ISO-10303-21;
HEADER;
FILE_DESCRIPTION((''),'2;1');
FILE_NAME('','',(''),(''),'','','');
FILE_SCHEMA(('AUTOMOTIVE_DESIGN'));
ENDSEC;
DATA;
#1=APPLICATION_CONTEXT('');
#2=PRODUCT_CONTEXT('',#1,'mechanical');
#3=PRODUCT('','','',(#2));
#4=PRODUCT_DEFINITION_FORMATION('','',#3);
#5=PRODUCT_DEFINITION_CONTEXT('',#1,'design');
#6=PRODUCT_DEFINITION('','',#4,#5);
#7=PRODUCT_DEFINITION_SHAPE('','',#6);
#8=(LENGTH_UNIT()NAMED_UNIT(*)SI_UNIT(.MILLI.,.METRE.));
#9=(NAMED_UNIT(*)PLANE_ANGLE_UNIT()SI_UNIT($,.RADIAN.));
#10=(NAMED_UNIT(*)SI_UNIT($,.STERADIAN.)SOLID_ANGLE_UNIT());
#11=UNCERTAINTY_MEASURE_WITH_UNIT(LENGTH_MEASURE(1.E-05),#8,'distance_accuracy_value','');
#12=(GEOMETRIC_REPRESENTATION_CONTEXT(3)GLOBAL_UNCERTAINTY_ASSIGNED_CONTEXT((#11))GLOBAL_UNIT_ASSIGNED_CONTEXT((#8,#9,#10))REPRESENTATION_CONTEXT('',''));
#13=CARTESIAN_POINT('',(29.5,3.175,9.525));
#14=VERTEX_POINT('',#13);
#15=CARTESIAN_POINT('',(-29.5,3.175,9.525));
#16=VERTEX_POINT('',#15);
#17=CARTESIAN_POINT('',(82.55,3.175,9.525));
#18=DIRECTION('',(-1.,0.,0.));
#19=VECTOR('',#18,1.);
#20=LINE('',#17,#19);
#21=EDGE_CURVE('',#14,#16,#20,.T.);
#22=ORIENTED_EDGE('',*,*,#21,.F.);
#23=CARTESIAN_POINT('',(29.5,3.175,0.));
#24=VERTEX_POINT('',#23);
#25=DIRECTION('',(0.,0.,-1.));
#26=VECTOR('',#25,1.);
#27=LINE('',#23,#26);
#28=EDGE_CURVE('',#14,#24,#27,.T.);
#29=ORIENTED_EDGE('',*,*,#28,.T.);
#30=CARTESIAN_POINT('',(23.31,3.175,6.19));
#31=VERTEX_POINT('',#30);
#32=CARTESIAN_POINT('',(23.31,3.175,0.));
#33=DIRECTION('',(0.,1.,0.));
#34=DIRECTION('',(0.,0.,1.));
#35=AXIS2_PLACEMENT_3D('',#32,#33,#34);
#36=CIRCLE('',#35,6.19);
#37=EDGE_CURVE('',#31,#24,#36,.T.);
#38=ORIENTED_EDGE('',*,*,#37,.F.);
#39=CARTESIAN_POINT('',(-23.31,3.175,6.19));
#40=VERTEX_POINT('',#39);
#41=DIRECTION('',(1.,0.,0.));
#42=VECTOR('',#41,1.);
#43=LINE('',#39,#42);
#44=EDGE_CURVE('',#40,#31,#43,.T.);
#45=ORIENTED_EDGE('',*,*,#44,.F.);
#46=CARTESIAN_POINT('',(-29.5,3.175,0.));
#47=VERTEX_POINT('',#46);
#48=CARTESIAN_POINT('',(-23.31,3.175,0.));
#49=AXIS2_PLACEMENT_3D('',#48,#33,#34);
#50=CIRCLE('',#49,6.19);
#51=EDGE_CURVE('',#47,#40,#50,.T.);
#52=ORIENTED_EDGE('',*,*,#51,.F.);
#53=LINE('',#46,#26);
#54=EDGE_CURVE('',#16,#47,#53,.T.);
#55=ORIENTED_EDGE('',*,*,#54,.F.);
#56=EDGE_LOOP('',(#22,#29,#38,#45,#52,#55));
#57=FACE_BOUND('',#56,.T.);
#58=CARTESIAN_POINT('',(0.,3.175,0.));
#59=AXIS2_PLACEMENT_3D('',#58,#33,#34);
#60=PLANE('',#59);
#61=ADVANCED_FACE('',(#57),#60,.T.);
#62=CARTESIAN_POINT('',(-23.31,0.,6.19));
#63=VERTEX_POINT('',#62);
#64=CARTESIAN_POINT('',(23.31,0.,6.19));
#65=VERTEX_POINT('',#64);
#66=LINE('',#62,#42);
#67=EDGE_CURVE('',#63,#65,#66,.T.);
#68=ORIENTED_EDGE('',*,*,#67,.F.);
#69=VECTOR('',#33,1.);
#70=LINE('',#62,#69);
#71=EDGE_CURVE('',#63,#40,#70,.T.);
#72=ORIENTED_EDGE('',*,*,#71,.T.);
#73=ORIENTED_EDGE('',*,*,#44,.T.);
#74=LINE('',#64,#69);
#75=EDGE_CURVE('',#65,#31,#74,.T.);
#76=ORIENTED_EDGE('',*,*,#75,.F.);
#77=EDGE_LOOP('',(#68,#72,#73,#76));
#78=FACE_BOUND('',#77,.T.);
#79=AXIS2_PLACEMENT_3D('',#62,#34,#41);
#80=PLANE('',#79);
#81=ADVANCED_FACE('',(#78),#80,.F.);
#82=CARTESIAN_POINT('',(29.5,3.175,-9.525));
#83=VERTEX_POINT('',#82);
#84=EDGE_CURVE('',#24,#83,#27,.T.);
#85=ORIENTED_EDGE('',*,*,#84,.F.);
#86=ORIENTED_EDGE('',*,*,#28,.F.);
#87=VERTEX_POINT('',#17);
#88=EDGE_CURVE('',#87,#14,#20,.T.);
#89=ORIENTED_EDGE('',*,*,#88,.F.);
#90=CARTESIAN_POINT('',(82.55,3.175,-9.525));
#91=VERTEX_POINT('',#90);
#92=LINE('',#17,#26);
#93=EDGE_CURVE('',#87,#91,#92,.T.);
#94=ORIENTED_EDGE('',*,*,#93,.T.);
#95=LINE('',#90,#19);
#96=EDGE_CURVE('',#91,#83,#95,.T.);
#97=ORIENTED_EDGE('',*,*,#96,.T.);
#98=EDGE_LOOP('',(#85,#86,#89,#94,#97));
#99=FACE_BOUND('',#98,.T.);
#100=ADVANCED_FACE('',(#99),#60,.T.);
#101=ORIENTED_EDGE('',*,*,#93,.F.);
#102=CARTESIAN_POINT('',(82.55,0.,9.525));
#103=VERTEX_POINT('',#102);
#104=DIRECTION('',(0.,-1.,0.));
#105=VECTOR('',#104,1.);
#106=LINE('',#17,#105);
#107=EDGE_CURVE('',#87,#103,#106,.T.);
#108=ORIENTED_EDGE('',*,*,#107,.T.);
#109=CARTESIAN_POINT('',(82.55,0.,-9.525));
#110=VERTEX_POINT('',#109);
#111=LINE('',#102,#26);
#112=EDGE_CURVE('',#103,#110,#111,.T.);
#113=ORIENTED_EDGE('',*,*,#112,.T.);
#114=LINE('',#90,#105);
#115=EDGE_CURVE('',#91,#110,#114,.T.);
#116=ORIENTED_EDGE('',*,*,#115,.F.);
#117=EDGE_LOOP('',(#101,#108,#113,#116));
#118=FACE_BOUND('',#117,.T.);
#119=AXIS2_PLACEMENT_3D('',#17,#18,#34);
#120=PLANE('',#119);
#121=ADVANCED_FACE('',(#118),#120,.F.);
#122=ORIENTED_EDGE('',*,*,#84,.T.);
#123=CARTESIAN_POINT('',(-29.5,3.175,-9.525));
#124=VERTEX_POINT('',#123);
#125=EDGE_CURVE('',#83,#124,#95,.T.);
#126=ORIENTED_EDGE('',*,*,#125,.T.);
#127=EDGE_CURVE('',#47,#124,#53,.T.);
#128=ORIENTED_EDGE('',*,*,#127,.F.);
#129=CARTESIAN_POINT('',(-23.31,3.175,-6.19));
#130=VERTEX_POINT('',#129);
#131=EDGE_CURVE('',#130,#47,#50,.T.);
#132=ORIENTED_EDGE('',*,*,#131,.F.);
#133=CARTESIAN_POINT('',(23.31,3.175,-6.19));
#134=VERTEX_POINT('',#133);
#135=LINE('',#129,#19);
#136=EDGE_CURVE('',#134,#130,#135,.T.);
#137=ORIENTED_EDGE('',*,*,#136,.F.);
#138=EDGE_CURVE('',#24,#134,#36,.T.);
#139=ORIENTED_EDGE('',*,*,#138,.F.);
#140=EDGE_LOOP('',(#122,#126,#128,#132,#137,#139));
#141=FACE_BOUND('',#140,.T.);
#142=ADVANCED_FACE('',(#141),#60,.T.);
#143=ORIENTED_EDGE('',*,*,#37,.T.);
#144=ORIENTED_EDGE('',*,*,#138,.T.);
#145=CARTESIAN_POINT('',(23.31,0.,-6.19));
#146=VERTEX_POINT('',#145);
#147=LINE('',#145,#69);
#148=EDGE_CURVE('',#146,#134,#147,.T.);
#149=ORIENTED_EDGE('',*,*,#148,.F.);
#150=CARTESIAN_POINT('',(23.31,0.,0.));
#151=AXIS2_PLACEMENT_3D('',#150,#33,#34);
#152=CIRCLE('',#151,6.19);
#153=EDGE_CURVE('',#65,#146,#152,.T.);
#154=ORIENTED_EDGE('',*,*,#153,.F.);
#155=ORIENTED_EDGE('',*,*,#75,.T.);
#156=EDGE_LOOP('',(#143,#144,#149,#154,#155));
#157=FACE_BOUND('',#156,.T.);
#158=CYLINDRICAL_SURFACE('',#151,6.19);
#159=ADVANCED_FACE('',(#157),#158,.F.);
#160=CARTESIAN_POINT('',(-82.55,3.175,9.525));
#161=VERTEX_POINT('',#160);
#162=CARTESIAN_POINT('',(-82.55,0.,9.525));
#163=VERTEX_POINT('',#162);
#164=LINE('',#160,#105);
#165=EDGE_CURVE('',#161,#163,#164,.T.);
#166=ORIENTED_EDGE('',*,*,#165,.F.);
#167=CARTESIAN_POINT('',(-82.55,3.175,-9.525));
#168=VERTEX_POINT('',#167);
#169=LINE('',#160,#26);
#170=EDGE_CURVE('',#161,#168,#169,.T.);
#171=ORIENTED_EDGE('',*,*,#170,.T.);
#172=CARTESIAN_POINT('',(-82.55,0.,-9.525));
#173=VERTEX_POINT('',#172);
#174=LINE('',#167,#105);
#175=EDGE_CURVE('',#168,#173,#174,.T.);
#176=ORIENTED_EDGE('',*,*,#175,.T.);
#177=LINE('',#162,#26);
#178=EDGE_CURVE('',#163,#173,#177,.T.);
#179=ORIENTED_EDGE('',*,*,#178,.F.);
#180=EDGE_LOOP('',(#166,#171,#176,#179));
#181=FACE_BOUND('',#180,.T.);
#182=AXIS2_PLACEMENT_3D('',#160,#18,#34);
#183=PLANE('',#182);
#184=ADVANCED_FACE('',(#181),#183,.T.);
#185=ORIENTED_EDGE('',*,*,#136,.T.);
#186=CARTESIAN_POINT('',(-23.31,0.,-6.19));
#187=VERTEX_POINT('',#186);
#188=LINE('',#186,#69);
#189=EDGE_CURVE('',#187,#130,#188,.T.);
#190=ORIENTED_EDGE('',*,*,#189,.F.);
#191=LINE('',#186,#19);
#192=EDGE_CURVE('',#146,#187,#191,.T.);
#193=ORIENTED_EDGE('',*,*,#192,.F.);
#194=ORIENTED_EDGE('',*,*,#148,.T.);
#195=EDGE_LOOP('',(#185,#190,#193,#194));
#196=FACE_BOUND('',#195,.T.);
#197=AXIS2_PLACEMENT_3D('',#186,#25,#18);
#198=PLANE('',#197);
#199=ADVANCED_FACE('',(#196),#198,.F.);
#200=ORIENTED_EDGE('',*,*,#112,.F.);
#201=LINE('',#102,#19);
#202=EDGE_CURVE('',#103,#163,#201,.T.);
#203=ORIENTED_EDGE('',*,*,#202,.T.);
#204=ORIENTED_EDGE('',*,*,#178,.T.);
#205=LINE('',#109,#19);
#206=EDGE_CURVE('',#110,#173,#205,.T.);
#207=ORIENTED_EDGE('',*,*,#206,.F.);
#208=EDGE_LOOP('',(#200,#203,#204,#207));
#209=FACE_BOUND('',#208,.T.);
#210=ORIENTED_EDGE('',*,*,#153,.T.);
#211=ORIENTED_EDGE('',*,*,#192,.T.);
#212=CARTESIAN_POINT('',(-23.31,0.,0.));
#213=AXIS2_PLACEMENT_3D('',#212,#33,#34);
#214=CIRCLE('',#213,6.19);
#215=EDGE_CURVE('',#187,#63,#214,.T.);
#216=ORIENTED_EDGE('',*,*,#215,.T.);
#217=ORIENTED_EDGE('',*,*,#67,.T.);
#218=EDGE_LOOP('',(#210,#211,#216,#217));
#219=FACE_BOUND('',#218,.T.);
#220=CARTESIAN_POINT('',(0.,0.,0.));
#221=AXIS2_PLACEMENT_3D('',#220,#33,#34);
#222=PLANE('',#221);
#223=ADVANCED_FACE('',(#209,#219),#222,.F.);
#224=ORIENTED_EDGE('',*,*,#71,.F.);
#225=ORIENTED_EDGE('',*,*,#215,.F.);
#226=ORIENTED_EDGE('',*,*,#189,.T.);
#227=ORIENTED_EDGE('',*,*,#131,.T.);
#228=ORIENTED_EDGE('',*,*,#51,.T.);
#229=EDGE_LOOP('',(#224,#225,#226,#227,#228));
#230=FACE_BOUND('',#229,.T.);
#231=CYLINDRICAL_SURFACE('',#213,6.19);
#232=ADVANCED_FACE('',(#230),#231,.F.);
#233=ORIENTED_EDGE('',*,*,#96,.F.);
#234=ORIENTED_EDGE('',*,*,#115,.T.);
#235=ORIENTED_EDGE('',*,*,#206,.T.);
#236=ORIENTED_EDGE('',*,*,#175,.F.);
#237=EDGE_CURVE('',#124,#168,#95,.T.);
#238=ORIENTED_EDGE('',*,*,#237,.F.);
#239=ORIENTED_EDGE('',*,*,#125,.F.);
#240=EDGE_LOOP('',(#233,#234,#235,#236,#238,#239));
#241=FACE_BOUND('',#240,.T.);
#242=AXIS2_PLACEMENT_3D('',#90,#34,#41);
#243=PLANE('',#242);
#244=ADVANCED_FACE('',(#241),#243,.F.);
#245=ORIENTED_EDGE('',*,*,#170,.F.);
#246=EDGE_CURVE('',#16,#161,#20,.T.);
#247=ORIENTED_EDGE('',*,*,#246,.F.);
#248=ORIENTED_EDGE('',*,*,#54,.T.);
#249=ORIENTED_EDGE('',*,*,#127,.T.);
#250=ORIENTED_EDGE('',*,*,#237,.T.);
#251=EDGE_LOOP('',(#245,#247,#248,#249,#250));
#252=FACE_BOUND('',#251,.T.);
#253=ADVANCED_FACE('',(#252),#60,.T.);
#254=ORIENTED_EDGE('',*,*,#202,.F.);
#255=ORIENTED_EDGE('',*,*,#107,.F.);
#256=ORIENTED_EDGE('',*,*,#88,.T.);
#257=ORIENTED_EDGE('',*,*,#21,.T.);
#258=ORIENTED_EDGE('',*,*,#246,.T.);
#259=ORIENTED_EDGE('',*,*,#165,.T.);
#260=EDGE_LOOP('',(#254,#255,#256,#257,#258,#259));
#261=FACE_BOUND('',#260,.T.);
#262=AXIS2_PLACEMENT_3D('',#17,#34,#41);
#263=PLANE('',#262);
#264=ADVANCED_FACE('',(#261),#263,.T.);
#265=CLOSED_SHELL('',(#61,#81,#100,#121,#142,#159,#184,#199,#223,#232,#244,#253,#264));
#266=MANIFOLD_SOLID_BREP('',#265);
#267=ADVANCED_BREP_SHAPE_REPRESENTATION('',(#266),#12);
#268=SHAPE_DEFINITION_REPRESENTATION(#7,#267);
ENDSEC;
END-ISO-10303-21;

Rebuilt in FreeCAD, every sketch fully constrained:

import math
import FreeCAD as App
import Part
import Sketcher
Q = App.Units.Quantity


def add_polygon(sketch, points):
    """Adds a closed chain of lines whose ends are joined by coincident constraints."""
    first, n = sketch.GeometryCount, len(points)
    for a, b in zip(points, points[1:] + points[:1]):
        sketch.addGeometry(Part.LineSegment(App.Vector(*a, 0), App.Vector(*b, 0)), False)
    for i in range(n):
        sketch.addConstraint(Sketcher.Constraint("Coincident", first + i, 2, first + (i + 1) % n, 1))

doc = App.newDocument("Part")
body = doc.addObject("PartDesign::Body", "Body")

sketch1 = body.newObject("Sketcher::SketchObject", "Sketch")
sketch1.AttachmentSupport = (doc.getObject("XZ_Plane"), [""])
sketch1.MapMode = "FlatFace"
add_polygon(sketch1, [(-82.55, -9.525), (-82.55, 9.525), (82.55, 9.525), (82.55, -9.525)])
sketch1.addConstraint([
    Sketcher.Constraint("Vertical", 0),
    Sketcher.Constraint("Horizontal", 1),
    Sketcher.Constraint("Vertical", 2),
    Sketcher.Constraint("Horizontal", 3),
    Sketcher.Constraint("Symmetric", 0, 2, 2, 2, -1, 1),
    Sketcher.Constraint("DistanceX", 1, 1, 1, 2, Q("6.5 in")),
    Sketcher.Constraint("DistanceY", 0, 1, 0, 2, Q("0.75 in")),
])
pad1 = body.newObject("PartDesign::Pad", "Pad")
pad1.Profile = sketch1
pad1.Length = Q("0.125 in")
pad1.Reversed = True

sketch2 = body.newObject("Sketcher::SketchObject", "Sketch001")
sketch2.AttachmentSupport = (doc.getObject("XZ_Plane"), [""])
sketch2.MapMode = "FlatFace"
sketch2.AttachmentOffset = App.Placement(App.Vector(0, 0, -0.125 * 25.4), App.Rotation())
sketch2.addGeometry([
    Part.LineSegment(App.Vector(23.31, -6.19, 0), App.Vector(-23.31, -6.19, 0)),
    Part.ArcOfCircle(Part.Circle(App.Vector(-23.31, 0, 0), App.Vector(0, 0, 1), 6.19), math.radians(90), math.radians(270)),
    Part.LineSegment(App.Vector(-23.31, 6.19, 0), App.Vector(23.31, 6.19, 0)),
    Part.ArcOfCircle(Part.Circle(App.Vector(23.31, 0, 0), App.Vector(0, 0, 1), 6.19), math.radians(-90), math.radians(90)),
], False)
sketch2.addConstraint([
    Sketcher.Constraint("Tangent", 0, 2, 1, 2),
    Sketcher.Constraint("Tangent", 1, 1, 2, 1),
    Sketcher.Constraint("Tangent", 2, 2, 3, 2),
    Sketcher.Constraint("Tangent", 3, 1, 0, 1),
    Sketcher.Constraint("Horizontal", 0),
    Sketcher.Constraint("Horizontal", 2),
    Sketcher.Constraint("Symmetric", 1, 3, 3, 3, -1, 1),
    Sketcher.Constraint("Radius", 1, 6.19),
    Sketcher.Constraint("DistanceX", 0, 2, 0, 1, 46.62),
])
pocket1 = body.newObject("PartDesign::Pocket", "Pocket")
pocket1.Profile = sketch2
pocket1.Type = "ThroughAll"
pocket1.Reversed = True

doc.recompute()
